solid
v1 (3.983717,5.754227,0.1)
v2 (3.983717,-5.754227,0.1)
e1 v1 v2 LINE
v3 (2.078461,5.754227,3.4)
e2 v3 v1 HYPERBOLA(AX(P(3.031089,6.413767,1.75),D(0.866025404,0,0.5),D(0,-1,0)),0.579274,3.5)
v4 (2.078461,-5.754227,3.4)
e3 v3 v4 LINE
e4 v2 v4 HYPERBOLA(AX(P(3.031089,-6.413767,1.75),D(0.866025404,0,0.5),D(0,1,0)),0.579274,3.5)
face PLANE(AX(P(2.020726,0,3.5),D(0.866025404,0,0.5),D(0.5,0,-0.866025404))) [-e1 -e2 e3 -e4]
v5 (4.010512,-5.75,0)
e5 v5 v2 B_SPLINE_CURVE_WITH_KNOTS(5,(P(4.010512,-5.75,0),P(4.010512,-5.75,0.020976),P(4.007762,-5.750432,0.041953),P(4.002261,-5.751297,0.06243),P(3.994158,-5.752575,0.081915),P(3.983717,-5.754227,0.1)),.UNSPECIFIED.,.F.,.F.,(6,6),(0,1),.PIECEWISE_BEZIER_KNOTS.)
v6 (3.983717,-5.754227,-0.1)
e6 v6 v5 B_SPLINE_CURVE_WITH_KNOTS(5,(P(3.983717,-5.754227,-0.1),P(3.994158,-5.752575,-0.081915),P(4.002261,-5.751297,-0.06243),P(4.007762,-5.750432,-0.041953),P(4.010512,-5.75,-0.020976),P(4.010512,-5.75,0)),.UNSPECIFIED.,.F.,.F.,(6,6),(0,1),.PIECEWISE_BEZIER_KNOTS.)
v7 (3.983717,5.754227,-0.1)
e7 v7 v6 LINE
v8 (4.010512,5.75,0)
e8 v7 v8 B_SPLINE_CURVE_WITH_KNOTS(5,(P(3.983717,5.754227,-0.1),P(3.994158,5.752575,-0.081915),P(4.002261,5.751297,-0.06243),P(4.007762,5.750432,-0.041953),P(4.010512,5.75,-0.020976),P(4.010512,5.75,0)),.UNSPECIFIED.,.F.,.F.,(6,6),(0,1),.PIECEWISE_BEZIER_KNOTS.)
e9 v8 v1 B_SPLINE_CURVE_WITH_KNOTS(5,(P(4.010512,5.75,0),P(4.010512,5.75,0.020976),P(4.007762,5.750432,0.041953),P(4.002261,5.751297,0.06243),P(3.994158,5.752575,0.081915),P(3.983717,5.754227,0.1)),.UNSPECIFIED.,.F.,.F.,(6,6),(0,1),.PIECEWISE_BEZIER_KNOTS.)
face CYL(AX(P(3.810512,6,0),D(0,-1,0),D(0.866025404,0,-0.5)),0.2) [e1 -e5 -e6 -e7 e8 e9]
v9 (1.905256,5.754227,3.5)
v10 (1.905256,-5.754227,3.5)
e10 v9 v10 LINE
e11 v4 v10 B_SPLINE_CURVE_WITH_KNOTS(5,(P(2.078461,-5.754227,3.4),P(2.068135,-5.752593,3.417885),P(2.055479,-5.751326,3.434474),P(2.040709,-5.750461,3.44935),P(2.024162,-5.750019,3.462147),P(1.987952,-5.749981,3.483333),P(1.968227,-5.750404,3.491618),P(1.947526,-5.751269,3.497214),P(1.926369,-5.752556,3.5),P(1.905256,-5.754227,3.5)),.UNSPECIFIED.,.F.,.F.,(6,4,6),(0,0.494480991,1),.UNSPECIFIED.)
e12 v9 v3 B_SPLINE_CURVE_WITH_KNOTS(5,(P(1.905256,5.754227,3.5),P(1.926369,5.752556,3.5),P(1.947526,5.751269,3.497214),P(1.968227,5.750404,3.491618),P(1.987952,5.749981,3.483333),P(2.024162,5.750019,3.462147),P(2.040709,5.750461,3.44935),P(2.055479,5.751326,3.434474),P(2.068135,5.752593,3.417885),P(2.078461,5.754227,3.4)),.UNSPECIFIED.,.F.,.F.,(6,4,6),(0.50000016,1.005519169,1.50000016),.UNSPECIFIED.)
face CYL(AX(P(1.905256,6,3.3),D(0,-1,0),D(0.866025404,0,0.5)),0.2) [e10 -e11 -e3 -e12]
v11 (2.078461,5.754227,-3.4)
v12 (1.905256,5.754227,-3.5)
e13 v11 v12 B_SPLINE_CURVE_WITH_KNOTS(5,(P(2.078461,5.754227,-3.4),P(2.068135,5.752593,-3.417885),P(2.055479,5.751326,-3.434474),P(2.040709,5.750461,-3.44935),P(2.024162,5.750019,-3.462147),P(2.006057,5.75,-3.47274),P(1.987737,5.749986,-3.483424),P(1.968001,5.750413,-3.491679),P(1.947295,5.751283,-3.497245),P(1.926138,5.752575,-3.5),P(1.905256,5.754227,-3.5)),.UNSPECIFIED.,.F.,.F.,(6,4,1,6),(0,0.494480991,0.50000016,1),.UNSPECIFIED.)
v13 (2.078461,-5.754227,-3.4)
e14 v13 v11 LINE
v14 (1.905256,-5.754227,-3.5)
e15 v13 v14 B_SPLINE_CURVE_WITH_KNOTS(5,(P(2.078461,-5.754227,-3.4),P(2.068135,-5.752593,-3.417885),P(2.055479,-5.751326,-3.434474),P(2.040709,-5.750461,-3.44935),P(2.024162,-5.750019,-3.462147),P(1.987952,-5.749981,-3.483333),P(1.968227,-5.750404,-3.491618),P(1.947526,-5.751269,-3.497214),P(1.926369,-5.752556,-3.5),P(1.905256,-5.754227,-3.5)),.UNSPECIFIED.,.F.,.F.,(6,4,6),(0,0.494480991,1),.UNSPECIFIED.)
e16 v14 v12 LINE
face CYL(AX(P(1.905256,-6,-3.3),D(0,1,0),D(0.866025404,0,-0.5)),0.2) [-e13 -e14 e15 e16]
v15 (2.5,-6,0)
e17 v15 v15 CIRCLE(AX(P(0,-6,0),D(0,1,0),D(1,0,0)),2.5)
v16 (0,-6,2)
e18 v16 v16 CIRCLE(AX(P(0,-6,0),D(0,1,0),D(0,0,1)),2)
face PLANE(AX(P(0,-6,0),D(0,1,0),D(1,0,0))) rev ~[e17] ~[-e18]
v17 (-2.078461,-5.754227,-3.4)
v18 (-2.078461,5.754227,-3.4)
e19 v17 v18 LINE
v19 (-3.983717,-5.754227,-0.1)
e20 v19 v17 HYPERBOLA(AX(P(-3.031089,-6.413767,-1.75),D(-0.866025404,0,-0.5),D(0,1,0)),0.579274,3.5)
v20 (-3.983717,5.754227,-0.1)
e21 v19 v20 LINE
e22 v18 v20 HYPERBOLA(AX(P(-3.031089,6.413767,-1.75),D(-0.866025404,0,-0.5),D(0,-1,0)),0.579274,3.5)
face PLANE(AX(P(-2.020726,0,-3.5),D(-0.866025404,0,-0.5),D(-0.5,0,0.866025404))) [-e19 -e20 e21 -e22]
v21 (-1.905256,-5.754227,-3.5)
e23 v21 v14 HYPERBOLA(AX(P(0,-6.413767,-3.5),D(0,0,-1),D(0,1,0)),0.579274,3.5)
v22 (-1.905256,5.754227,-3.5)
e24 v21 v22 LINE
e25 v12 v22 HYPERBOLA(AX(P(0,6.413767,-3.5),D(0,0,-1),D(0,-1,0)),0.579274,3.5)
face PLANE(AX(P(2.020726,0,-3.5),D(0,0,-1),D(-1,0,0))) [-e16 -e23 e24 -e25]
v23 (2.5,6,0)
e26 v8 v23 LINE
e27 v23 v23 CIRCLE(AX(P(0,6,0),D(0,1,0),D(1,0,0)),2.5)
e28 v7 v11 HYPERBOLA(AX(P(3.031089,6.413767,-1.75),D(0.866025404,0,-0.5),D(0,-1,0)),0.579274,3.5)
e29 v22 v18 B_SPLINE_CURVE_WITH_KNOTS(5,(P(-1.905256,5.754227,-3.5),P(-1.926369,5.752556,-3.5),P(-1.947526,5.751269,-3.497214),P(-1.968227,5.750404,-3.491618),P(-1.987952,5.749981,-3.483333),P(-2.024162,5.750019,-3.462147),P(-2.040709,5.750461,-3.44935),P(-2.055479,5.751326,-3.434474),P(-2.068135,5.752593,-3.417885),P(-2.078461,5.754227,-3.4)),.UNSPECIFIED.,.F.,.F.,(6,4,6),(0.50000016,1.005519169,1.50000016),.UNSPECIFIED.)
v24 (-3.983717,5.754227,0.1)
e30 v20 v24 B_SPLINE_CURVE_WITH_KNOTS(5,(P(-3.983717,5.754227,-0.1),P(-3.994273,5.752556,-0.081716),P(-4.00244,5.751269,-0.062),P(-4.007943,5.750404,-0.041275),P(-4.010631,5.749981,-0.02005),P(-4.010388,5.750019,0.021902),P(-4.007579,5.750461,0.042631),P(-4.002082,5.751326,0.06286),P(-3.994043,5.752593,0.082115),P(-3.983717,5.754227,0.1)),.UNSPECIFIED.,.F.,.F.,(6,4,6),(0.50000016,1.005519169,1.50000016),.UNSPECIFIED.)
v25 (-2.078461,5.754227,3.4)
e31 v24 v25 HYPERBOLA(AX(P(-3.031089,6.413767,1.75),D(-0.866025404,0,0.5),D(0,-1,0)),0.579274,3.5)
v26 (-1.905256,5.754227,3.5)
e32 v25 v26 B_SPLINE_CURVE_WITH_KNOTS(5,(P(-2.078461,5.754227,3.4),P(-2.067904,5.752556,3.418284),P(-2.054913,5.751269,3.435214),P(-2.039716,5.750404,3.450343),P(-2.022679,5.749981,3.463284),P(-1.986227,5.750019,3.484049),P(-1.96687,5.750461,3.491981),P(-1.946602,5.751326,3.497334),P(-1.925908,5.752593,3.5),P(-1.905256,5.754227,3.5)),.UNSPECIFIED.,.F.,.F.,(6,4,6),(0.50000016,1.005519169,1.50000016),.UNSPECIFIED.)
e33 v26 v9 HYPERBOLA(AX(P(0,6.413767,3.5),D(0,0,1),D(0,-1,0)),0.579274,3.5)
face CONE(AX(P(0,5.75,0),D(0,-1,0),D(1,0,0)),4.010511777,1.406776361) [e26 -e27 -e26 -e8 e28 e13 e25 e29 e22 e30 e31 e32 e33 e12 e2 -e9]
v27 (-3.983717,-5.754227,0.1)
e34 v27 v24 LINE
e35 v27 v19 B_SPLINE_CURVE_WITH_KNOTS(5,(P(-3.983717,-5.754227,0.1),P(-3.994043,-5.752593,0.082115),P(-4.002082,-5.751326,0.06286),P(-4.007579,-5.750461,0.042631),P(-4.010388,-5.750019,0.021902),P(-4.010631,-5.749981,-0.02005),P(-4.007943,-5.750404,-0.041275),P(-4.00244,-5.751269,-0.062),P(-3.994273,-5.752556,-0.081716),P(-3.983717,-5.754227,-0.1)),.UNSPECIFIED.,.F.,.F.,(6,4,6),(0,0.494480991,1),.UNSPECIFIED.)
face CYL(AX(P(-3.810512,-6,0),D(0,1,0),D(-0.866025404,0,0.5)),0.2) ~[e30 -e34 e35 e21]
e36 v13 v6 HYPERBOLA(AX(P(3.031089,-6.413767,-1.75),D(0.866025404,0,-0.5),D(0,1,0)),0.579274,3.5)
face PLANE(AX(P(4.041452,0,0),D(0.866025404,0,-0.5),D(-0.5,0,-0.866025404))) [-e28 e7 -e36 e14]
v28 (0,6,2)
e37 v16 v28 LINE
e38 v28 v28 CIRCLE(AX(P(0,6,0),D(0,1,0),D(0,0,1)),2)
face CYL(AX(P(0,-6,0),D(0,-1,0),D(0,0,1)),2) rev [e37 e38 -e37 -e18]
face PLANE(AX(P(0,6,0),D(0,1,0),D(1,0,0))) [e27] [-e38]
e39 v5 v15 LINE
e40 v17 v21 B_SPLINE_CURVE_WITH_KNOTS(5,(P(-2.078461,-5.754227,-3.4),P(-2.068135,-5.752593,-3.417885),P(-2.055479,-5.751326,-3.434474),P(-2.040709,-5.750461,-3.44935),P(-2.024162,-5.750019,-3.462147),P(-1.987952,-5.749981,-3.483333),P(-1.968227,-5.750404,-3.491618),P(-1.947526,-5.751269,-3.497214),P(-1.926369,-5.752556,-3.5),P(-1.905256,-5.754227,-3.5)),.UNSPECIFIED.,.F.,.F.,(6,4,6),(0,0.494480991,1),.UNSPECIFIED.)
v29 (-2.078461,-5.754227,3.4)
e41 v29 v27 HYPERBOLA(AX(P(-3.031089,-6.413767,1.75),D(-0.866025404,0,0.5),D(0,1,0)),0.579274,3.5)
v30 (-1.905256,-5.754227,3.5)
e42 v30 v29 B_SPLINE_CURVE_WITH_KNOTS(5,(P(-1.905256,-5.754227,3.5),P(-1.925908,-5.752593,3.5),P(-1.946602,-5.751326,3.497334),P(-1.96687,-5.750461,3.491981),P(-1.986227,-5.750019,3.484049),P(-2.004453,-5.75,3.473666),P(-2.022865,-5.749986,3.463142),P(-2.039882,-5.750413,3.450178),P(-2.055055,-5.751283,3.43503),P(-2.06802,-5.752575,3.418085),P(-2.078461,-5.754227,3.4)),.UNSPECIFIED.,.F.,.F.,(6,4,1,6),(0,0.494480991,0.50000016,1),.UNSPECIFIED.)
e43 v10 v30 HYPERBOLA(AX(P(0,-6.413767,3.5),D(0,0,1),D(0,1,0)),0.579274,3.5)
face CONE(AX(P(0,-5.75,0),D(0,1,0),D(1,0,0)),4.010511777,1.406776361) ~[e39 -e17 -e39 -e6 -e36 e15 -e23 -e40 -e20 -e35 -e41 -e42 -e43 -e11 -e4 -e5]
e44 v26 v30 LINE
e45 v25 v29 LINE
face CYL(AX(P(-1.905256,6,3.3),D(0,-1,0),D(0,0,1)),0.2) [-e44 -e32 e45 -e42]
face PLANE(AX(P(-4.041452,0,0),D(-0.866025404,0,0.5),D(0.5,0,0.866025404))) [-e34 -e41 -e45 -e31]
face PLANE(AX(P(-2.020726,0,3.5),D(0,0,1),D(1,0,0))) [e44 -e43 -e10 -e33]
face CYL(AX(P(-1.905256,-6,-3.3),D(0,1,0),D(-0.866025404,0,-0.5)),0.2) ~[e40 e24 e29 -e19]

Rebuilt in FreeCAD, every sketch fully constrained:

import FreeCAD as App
import Part
import Sketcher
from FreeCAD import Vector
Q = App.Units.Quantity


def edges_at(feature, points):
    """Names of the edges that pass closest to the given points."""
    edges = feature.Shape.Edges
    near = lambda p: min(range(len(edges)), key=lambda i: edges[i].distToShape(Part.Vertex(*p))[0])
    return sorted({f"Edge{near(p) + 1}" for p in points})


def add_polygon(sketch, points):
    """Adds a closed chain of lines whose ends are joined by coincident constraints."""
    first, n = sketch.GeometryCount, len(points)
    for a, b in zip(points, points[1:] + points[:1]):
        sketch.addGeometry(Part.LineSegment(App.Vector(*a, 0), App.Vector(*b, 0)), False)
    for i in range(n):
        sketch.addConstraint(Sketcher.Constraint("Coincident", first + i, 2, first + (i + 1) % n, 1))

doc = App.newDocument("Part")
body = doc.addObject("PartDesign::Body", "Body")

# Sketch on XZ plane
sketch1 = body.newObject("Sketcher::SketchObject", "Sketch")
sketch1.AttachmentSupport = (doc.getObject("XZ_Plane"), [""])
sketch1.MapMode = "FlatFace"
add_polygon(sketch1, [(4, 0), (2, -3.5), (-2, -3.5), (-4, 0), (-2, 3.5), (2, 3.5)])  # lines 0-5
sketch1.addConstraint(Sketcher.Constraint("Horizontal", 1))
sketch1.addConstraint(Sketcher.Constraint("Horizontal", 4))
sketch1.addConstraint(Sketcher.Constraint("Symmetric", 0, 2, 3, 2, -1, 1))
sketch1.addConstraint(Sketcher.Constraint("Symmetric", 2, 2, 5, 2, -1, 1))
sketch1.addConstraint(Sketcher.Constraint("PointOnObject", 2, 2, -1))
sketch1.addConstraint(Sketcher.Constraint("Parallel", 2, 5))
sketch1.addConstraint(Sketcher.Constraint("Vertical", 1, 2, 3, 2))
sketch1.addConstraint(Sketcher.Constraint("Angle", 0, Q("-120 deg")))
sketch1.addConstraint(Sketcher.Constraint("DistanceY", 1, 2, 3, 2, 7.0))
sketch1.addConstraint(Sketcher.Constraint("DistanceX", 1, 2, 1, 1, 4.041452))
pad1 = body.newObject("PartDesign::Pad", "Pad")
pad1.Profile = sketch1
pad1.Length = 12
pad1.Midplane = True
doc.recompute()

fillet = body.newObject("PartDesign::Fillet", "Fillet")
fillet.Base = (pad1, edges_at(pad1, [
    (2.021, 0, 3.5),
    (-2.021, 0, 3.5),
    (-4.041, 0, 0),
    (-2.021, 0, -3.5),
    (2.021, 0, -3.5),
    (4.041, 0, 0),
]))
fillet.Radius = 0.2

# Sketch on XZ plane
sketch2 = body.newObject("Sketcher::SketchObject", "Sketch001")
sketch2.AttachmentSupport = (doc.getObject("XZ_Plane"), [""])
sketch2.MapMode = "FlatFace"
sketch2.AttachmentOffset = App.Placement(Vector(0, 0, -6), App.Rotation())
sketch2.addGeometry(Part.Circle(Vector(0, 0, 0), Vector(0, 0, 1), 2), False)
sketch2.addConstraint(Sketcher.Constraint("Coincident", 0, 3, -1, 1))
sketch2.addConstraint(Sketcher.Constraint("Diameter", 0, 4.0))
pocket1 = body.newObject("PartDesign::Pocket", "Pocket")
pocket1.Profile = sketch2
pocket1.Length = 8
pocket1.Reversed = True

# Sketch on XY plane
sketch3 = body.newObject("Sketcher::SketchObject", "Sketch002")
sketch3.AttachmentSupport = (doc.getObject("XY_Plane"), [""])
sketch3.MapMode = "FlatFace"
add_polygon(sketch3, [(-4.01, 6), (-4.01, 5.75), (-2.5, 6)])  # lines 0-2
sketch3.addConstraint(Sketcher.Constraint("Vertical", 0))
sketch3.addConstraint(Sketcher.Constraint("Horizontal", 2))
sketch3.addConstraint(Sketcher.Constraint("DistanceY", -1, 1, 1, 2, 6.0))
sketch3.addConstraint(Sketcher.Constraint("DistanceY", 0, 2, 0, 1, 0.25))
sketch3.addConstraint(Sketcher.Constraint("DistanceX", 1, 2, -1, 1, 2.5))
sketch3.addConstraint(Sketcher.Constraint("DistanceX", 2, 2, 2, 1, 1.510512))
groove = body.newObject("PartDesign::Groove", "Groove")
groove.Profile = sketch3
groove.ReferenceAxis = (sketch3, ["V_Axis"])
groove.Angle = 360
doc.recompute()

mirrored = body.newObject("PartDesign::Mirrored", "Mirrored")
mirrored.Originals = [pocket1, groove]
mirrored.MirrorPlane = (doc.getObject("XZ_Plane"), [""])
body.Tip = mirrored

doc.recompute()
